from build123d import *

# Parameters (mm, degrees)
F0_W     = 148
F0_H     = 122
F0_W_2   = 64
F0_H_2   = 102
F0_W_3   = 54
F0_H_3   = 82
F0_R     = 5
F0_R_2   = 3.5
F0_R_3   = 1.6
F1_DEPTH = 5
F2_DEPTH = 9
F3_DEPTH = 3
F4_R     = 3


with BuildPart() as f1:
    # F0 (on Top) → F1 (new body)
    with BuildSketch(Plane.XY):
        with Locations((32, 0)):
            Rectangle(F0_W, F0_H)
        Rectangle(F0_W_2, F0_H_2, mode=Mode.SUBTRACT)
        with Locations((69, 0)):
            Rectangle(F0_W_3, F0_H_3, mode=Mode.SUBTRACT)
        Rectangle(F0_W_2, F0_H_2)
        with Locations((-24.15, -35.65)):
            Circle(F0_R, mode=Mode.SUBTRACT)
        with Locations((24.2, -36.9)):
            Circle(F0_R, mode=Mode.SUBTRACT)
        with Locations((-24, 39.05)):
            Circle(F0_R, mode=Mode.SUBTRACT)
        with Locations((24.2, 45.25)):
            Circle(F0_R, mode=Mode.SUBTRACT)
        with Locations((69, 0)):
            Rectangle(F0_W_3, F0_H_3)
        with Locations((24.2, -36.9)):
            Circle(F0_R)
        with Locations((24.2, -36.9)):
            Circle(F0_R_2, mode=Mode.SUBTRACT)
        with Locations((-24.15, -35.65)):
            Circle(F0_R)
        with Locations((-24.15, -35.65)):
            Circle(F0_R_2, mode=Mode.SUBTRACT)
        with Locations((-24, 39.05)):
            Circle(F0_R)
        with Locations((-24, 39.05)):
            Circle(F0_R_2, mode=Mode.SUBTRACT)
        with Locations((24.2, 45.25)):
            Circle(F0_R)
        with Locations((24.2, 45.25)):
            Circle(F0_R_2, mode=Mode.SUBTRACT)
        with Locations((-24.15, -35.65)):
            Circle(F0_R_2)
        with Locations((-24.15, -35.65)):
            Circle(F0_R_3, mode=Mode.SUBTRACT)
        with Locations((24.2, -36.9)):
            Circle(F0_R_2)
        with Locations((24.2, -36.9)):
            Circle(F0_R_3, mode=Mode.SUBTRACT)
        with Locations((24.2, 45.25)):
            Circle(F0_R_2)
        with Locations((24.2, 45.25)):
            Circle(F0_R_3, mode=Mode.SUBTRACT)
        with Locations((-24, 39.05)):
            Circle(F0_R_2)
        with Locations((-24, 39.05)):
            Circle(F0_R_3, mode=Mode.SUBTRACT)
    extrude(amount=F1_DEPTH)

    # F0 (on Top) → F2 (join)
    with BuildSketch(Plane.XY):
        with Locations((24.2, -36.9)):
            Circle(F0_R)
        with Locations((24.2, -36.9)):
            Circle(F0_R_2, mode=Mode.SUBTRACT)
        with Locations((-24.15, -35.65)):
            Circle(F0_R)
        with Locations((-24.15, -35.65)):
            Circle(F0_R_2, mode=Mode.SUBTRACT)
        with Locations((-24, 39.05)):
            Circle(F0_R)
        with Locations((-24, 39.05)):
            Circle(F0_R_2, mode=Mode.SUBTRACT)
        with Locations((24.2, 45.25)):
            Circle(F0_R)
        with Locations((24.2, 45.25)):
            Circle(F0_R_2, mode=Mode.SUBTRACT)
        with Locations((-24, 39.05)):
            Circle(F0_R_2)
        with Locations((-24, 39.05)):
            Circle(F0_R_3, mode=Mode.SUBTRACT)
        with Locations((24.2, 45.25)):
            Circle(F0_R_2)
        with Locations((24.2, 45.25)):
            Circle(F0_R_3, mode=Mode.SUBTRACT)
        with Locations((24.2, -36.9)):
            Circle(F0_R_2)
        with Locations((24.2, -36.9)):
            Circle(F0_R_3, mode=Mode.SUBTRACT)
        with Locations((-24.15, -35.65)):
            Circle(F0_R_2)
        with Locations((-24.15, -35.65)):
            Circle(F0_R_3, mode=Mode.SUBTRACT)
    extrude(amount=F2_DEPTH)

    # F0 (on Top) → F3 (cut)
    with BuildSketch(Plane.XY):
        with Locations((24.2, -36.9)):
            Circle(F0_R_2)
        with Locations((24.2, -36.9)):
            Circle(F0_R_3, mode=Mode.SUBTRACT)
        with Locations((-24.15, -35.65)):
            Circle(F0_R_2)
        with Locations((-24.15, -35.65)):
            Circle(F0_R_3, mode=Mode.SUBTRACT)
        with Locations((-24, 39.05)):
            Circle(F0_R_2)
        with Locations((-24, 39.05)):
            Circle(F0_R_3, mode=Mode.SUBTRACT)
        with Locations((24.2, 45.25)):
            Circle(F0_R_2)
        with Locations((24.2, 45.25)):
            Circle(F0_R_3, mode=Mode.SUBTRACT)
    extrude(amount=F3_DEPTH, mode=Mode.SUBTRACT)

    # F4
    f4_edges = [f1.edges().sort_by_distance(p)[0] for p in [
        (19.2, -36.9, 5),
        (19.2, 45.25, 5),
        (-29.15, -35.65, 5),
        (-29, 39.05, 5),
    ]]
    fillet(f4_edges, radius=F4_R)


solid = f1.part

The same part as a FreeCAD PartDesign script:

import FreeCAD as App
import Part
import Sketcher
from FreeCAD import Vector


def edges_at(feature, points):
    """Names of the edges that pass closest to the given points."""
    edges = feature.Shape.Edges
    near = lambda p: min(range(len(edges)), key=lambda i: edges[i].distToShape(Part.Vertex(*p))[0])
    return sorted({f"Edge{near(p) + 1}" for p in points})

doc = App.newDocument("Part")
params = doc.addObject("Spreadsheet::Sheet", "Params")
for row, (alias, value) in enumerate([
    ("sketch1_diameter", "3.2 mm"),
    ("sketch1_width", "148 mm"),
    ("sketch1_height", "122 mm"),
    ("pad1_length", "5 mm"),
    ("sketch2_diameter", "10 mm"),
    ("sketch2_diameter2", "3.2 mm"),
    ("pad2_length", "9 mm"),
    ("sketch3_diameter", "7 mm"),
    ("sketch3_diameter2", "3.2 mm"),
    ("pocket1_length", "3 mm"),
    ("fillet_radius", "3 mm"),
], start=1):
    params.set(f"A{row}", alias)
    params.set(f"B{row}", "=" + value)
    params.setAlias(f"B{row}", alias)

body = doc.addObject("PartDesign::Body", "Body")

# Sketch on XY plane
sketch1 = body.newObject("Sketcher::SketchObject", "Sketch")
sketch1.AttachmentSupport = (doc.getObject("XY_Plane"), [""])
sketch1.MapMode = "FlatFace"
sketch1.addGeometry([
    Part.LineSegment(Vector(-42, 61, 0), Vector(-42, -61, 0)),  # 0
    Part.LineSegment(Vector(-42, -61, 0), Vector(106, -61, 0)),  # 1
    Part.LineSegment(Vector(106, -61, 0), Vector(106, 61, 0)),  # 2
    Part.LineSegment(Vector(106, 61, 0), Vector(-42, 61, 0)),  # 3
    Part.Circle(Vector(-24.1, -35.6, 0), Vector(0, 0, 1), 1.6),  # 4
    Part.Circle(Vector(24.2, -36.9, 0), Vector(0, 0, 1), 1.6),  # 5
    Part.Circle(Vector(-24, 39, 0), Vector(0, 0, 1), 1.6),  # 6
    Part.Circle(Vector(24.2, 45.2, 0), Vector(0, 0, 1), 1.6),  # 7
], False)
sketch1.addConstraint([
    Sketcher.Constraint("Coincident", 0, 2, 1, 1),
    Sketcher.Constraint("Coincident", 1, 2, 2, 1),
    Sketcher.Constraint("Coincident", 2, 2, 3, 1),
    Sketcher.Constraint("Coincident", 3, 2, 0, 1),
    Sketcher.Constraint("Vertical", 0),
    Sketcher.Constraint("Horizontal", 1),
    Sketcher.Constraint("Vertical", 2),
    Sketcher.Constraint("Horizontal", 3),
    Sketcher.Constraint("Equal", 4, 5),
    Sketcher.Constraint("Equal", 5, 6),
    Sketcher.Constraint("Equal", 6, 7),
    Sketcher.Constraint("Vertical", 5, 3, 7, 3),
    Sketcher.Constraint("Diameter", 4, 3.2),
    Sketcher.Constraint("DistanceX", 1, 1, 1, 2, 148.0),
    Sketcher.Constraint("DistanceY", 0, 2, 0, 1, 122.0),
    Sketcher.Constraint("DistanceX", 6, 3, -1, 1, 24.0),
    Sketcher.Constraint("DistanceX", 0, 2, -1, 1, 42.0),
    Sketcher.Constraint("DistanceY", 0, 2, -1, 1, 61.0),
    Sketcher.Constraint("DistanceX", -1, 1, 5, 3, 24.2),
    Sketcher.Constraint("DistanceY", 5, 3, -1, 1, 36.9),
    Sketcher.Constraint("DistanceY", 4, 3, 6, 3, 74.7),
    Sketcher.Constraint("DistanceY", 6, 3, 7, 3, 6.2),
    Sketcher.Constraint("DistanceX", 4, 3, -1, 1, 24.15),
    Sketcher.Constraint("DistanceY", 4, 3, -1, 1, 35.65),
])
sketch1.setExpression("Constraints[12]", "Params.sketch1_diameter")
sketch1.setExpression("Constraints[13]", "Params.sketch1_width")
sketch1.setExpression("Constraints[14]", "Params.sketch1_height")
pad1 = body.newObject("PartDesign::Pad", "Pad")
pad1.Profile = sketch1
pad1.setExpression("Length", "Params.pad1_length")

# Sketch on XY plane
sketch2 = body.newObject("Sketcher::SketchObject", "Sketch001")
sketch2.AttachmentSupport = (doc.getObject("XY_Plane"), [""])
sketch2.MapMode = "FlatFace"
sketch2.addGeometry([
    Part.Circle(Vector(24.2, -36.9, 0), Vector(0, 0, 1), 5),  # 0
    Part.Circle(Vector(24.2, -36.9, 0), Vector(0, 0, 1), 1.6),  # 1
    Part.Circle(Vector(-24.1, -35.6, 0), Vector(0, 0, 1), 5),  # 2
    Part.Circle(Vector(-24.1, -35.6, 0), Vector(0, 0, 1), 1.6),  # 3
    Part.Circle(Vector(-24, 39, 0), Vector(0, 0, 1), 5),  # 4
    Part.Circle(Vector(-24, 39, 0), Vector(0, 0, 1), 1.6),  # 5
    Part.Circle(Vector(24.2, 45.2, 0), Vector(0, 0, 1), 5),  # 6
    Part.Circle(Vector(24.2, 45.2, 0), Vector(0, 0, 1), 1.6),  # 7
], False)
sketch2.addConstraint([
    Sketcher.Constraint("Coincident", 1, 3, 0, 3),
    Sketcher.Constraint("Coincident", 3, 3, 2, 3),
    Sketcher.Constraint("Coincident", 5, 3, 4, 3),
    Sketcher.Constraint("Coincident", 7, 3, 6, 3),
    Sketcher.Constraint("Equal", 0, 2),
    Sketcher.Constraint("Equal", 1, 3),
    Sketcher.Constraint("Equal", 2, 4),
    Sketcher.Constraint("Equal", 3, 5),
    Sketcher.Constraint("Equal", 4, 6),
    Sketcher.Constraint("Equal", 5, 7),
    Sketcher.Constraint("Vertical", 1, 3, 6, 3),
    Sketcher.Constraint("Diameter", 0, 10.0),
    Sketcher.Constraint("Diameter", 1, 3.2),
    Sketcher.Constraint("DistanceX", 4, 3, -1, 1, 24.0),
    Sketcher.Constraint("DistanceX", -1, 1, 0, 3, 24.2),
    Sketcher.Constraint("DistanceY", 0, 3, -1, 1, 36.9),
    Sketcher.Constraint("DistanceY", 2, 3, 4, 3, 74.7),
    Sketcher.Constraint("DistanceY", 4, 3, 6, 3, 6.2),
    Sketcher.Constraint("DistanceX", 2, 3, -1, 1, 24.15),
    Sketcher.Constraint("DistanceY", 2, 3, -1, 1, 35.65),
])
sketch2.setExpression("Constraints[11]", "Params.sketch2_diameter")
sketch2.setExpression("Constraints[12]", "Params.sketch2_diameter2")
pad2 = body.newObject("PartDesign::Pad", "Pad001")
pad2.Profile = sketch2
pad2.setExpression("Length", "Params.pad2_length")

# Sketch on XY plane
sketch3 = body.newObject("Sketcher::SketchObject", "Sketch002")
sketch3.AttachmentSupport = (doc.getObject("XY_Plane"), [""])
sketch3.MapMode = "FlatFace"
sketch3.addGeometry([
    Part.Circle(Vector(24.2, -36.9, 0), Vector(0, 0, 1), 3.5),  # 0
    Part.Circle(Vector(24.2, -36.9, 0), Vector(0, 0, 1), 1.6),  # 1
    Part.Circle(Vector(-24.1, -35.6, 0), Vector(0, 0, 1), 3.5),  # 2
    Part.Circle(Vector(-24.1, -35.6, 0), Vector(0, 0, 1), 1.6),  # 3
    Part.Circle(Vector(-24, 39, 0), Vector(0, 0, 1), 3.5),  # 4
    Part.Circle(Vector(-24, 39, 0), Vector(0, 0, 1), 1.6),  # 5
    Part.Circle(Vector(24.2, 45.2, 0), Vector(0, 0, 1), 3.5),  # 6
    Part.Circle(Vector(24.2, 45.2, 0), Vector(0, 0, 1), 1.6),  # 7
], False)
sketch3.addConstraint([
    Sketcher.Constraint("Coincident", 1, 3, 0, 3),
    Sketcher.Constraint("Coincident", 3, 3, 2, 3),
    Sketcher.Constraint("Coincident", 5, 3, 4, 3),
    Sketcher.Constraint("Coincident", 7, 3, 6, 3),
    Sketcher.Constraint("Equal", 0, 2),
    Sketcher.Constraint("Equal", 1, 3),
    Sketcher.Constraint("Equal", 2, 4),
    Sketcher.Constraint("Equal", 3, 5),
    Sketcher.Constraint("Equal", 4, 6),
    Sketcher.Constraint("Equal", 5, 7),
    Sketcher.Constraint("Vertical", 1, 3, 6, 3),
    Sketcher.Constraint("Diameter", 0, 7.0),
    Sketcher.Constraint("Diameter", 1, 3.2),
    Sketcher.Constraint("DistanceX", 4, 3, -1, 1, 24.0),
    Sketcher.Constraint("DistanceX", -1, 1, 0, 3, 24.2),
    Sketcher.Constraint("DistanceY", 0, 3, -1, 1, 36.9),
    Sketcher.Constraint("DistanceY", 2, 3, 4, 3, 74.7),
    Sketcher.Constraint("DistanceY", 4, 3, 6, 3, 6.2),
    Sketcher.Constraint("DistanceX", 2, 3, -1, 1, 24.15),
    Sketcher.Constraint("DistanceY", 2, 3, -1, 1, 35.65),
])
sketch3.setExpression("Constraints[11]", "Params.sketch3_diameter")
sketch3.setExpression("Constraints[12]", "Params.sketch3_diameter2")
pocket1 = body.newObject("PartDesign::Pocket", "Pocket")
pocket1.Profile = sketch3
pocket1.setExpression("Length", "Params.pocket1_length")
pocket1.Reversed = True
doc.recompute()

fillet = body.newObject("PartDesign::Fillet", "Fillet")
fillet.Base = (pocket1, edges_at(pocket1, [
    (19.2, -36.9, 5),
    (19.2, 45.25, 5),
    (-29.15, -35.65, 5),
    (-29, 39.05, 5),
]))
fillet.setExpression("Radius", "Params.fillet_radius")

doc.recompute()
